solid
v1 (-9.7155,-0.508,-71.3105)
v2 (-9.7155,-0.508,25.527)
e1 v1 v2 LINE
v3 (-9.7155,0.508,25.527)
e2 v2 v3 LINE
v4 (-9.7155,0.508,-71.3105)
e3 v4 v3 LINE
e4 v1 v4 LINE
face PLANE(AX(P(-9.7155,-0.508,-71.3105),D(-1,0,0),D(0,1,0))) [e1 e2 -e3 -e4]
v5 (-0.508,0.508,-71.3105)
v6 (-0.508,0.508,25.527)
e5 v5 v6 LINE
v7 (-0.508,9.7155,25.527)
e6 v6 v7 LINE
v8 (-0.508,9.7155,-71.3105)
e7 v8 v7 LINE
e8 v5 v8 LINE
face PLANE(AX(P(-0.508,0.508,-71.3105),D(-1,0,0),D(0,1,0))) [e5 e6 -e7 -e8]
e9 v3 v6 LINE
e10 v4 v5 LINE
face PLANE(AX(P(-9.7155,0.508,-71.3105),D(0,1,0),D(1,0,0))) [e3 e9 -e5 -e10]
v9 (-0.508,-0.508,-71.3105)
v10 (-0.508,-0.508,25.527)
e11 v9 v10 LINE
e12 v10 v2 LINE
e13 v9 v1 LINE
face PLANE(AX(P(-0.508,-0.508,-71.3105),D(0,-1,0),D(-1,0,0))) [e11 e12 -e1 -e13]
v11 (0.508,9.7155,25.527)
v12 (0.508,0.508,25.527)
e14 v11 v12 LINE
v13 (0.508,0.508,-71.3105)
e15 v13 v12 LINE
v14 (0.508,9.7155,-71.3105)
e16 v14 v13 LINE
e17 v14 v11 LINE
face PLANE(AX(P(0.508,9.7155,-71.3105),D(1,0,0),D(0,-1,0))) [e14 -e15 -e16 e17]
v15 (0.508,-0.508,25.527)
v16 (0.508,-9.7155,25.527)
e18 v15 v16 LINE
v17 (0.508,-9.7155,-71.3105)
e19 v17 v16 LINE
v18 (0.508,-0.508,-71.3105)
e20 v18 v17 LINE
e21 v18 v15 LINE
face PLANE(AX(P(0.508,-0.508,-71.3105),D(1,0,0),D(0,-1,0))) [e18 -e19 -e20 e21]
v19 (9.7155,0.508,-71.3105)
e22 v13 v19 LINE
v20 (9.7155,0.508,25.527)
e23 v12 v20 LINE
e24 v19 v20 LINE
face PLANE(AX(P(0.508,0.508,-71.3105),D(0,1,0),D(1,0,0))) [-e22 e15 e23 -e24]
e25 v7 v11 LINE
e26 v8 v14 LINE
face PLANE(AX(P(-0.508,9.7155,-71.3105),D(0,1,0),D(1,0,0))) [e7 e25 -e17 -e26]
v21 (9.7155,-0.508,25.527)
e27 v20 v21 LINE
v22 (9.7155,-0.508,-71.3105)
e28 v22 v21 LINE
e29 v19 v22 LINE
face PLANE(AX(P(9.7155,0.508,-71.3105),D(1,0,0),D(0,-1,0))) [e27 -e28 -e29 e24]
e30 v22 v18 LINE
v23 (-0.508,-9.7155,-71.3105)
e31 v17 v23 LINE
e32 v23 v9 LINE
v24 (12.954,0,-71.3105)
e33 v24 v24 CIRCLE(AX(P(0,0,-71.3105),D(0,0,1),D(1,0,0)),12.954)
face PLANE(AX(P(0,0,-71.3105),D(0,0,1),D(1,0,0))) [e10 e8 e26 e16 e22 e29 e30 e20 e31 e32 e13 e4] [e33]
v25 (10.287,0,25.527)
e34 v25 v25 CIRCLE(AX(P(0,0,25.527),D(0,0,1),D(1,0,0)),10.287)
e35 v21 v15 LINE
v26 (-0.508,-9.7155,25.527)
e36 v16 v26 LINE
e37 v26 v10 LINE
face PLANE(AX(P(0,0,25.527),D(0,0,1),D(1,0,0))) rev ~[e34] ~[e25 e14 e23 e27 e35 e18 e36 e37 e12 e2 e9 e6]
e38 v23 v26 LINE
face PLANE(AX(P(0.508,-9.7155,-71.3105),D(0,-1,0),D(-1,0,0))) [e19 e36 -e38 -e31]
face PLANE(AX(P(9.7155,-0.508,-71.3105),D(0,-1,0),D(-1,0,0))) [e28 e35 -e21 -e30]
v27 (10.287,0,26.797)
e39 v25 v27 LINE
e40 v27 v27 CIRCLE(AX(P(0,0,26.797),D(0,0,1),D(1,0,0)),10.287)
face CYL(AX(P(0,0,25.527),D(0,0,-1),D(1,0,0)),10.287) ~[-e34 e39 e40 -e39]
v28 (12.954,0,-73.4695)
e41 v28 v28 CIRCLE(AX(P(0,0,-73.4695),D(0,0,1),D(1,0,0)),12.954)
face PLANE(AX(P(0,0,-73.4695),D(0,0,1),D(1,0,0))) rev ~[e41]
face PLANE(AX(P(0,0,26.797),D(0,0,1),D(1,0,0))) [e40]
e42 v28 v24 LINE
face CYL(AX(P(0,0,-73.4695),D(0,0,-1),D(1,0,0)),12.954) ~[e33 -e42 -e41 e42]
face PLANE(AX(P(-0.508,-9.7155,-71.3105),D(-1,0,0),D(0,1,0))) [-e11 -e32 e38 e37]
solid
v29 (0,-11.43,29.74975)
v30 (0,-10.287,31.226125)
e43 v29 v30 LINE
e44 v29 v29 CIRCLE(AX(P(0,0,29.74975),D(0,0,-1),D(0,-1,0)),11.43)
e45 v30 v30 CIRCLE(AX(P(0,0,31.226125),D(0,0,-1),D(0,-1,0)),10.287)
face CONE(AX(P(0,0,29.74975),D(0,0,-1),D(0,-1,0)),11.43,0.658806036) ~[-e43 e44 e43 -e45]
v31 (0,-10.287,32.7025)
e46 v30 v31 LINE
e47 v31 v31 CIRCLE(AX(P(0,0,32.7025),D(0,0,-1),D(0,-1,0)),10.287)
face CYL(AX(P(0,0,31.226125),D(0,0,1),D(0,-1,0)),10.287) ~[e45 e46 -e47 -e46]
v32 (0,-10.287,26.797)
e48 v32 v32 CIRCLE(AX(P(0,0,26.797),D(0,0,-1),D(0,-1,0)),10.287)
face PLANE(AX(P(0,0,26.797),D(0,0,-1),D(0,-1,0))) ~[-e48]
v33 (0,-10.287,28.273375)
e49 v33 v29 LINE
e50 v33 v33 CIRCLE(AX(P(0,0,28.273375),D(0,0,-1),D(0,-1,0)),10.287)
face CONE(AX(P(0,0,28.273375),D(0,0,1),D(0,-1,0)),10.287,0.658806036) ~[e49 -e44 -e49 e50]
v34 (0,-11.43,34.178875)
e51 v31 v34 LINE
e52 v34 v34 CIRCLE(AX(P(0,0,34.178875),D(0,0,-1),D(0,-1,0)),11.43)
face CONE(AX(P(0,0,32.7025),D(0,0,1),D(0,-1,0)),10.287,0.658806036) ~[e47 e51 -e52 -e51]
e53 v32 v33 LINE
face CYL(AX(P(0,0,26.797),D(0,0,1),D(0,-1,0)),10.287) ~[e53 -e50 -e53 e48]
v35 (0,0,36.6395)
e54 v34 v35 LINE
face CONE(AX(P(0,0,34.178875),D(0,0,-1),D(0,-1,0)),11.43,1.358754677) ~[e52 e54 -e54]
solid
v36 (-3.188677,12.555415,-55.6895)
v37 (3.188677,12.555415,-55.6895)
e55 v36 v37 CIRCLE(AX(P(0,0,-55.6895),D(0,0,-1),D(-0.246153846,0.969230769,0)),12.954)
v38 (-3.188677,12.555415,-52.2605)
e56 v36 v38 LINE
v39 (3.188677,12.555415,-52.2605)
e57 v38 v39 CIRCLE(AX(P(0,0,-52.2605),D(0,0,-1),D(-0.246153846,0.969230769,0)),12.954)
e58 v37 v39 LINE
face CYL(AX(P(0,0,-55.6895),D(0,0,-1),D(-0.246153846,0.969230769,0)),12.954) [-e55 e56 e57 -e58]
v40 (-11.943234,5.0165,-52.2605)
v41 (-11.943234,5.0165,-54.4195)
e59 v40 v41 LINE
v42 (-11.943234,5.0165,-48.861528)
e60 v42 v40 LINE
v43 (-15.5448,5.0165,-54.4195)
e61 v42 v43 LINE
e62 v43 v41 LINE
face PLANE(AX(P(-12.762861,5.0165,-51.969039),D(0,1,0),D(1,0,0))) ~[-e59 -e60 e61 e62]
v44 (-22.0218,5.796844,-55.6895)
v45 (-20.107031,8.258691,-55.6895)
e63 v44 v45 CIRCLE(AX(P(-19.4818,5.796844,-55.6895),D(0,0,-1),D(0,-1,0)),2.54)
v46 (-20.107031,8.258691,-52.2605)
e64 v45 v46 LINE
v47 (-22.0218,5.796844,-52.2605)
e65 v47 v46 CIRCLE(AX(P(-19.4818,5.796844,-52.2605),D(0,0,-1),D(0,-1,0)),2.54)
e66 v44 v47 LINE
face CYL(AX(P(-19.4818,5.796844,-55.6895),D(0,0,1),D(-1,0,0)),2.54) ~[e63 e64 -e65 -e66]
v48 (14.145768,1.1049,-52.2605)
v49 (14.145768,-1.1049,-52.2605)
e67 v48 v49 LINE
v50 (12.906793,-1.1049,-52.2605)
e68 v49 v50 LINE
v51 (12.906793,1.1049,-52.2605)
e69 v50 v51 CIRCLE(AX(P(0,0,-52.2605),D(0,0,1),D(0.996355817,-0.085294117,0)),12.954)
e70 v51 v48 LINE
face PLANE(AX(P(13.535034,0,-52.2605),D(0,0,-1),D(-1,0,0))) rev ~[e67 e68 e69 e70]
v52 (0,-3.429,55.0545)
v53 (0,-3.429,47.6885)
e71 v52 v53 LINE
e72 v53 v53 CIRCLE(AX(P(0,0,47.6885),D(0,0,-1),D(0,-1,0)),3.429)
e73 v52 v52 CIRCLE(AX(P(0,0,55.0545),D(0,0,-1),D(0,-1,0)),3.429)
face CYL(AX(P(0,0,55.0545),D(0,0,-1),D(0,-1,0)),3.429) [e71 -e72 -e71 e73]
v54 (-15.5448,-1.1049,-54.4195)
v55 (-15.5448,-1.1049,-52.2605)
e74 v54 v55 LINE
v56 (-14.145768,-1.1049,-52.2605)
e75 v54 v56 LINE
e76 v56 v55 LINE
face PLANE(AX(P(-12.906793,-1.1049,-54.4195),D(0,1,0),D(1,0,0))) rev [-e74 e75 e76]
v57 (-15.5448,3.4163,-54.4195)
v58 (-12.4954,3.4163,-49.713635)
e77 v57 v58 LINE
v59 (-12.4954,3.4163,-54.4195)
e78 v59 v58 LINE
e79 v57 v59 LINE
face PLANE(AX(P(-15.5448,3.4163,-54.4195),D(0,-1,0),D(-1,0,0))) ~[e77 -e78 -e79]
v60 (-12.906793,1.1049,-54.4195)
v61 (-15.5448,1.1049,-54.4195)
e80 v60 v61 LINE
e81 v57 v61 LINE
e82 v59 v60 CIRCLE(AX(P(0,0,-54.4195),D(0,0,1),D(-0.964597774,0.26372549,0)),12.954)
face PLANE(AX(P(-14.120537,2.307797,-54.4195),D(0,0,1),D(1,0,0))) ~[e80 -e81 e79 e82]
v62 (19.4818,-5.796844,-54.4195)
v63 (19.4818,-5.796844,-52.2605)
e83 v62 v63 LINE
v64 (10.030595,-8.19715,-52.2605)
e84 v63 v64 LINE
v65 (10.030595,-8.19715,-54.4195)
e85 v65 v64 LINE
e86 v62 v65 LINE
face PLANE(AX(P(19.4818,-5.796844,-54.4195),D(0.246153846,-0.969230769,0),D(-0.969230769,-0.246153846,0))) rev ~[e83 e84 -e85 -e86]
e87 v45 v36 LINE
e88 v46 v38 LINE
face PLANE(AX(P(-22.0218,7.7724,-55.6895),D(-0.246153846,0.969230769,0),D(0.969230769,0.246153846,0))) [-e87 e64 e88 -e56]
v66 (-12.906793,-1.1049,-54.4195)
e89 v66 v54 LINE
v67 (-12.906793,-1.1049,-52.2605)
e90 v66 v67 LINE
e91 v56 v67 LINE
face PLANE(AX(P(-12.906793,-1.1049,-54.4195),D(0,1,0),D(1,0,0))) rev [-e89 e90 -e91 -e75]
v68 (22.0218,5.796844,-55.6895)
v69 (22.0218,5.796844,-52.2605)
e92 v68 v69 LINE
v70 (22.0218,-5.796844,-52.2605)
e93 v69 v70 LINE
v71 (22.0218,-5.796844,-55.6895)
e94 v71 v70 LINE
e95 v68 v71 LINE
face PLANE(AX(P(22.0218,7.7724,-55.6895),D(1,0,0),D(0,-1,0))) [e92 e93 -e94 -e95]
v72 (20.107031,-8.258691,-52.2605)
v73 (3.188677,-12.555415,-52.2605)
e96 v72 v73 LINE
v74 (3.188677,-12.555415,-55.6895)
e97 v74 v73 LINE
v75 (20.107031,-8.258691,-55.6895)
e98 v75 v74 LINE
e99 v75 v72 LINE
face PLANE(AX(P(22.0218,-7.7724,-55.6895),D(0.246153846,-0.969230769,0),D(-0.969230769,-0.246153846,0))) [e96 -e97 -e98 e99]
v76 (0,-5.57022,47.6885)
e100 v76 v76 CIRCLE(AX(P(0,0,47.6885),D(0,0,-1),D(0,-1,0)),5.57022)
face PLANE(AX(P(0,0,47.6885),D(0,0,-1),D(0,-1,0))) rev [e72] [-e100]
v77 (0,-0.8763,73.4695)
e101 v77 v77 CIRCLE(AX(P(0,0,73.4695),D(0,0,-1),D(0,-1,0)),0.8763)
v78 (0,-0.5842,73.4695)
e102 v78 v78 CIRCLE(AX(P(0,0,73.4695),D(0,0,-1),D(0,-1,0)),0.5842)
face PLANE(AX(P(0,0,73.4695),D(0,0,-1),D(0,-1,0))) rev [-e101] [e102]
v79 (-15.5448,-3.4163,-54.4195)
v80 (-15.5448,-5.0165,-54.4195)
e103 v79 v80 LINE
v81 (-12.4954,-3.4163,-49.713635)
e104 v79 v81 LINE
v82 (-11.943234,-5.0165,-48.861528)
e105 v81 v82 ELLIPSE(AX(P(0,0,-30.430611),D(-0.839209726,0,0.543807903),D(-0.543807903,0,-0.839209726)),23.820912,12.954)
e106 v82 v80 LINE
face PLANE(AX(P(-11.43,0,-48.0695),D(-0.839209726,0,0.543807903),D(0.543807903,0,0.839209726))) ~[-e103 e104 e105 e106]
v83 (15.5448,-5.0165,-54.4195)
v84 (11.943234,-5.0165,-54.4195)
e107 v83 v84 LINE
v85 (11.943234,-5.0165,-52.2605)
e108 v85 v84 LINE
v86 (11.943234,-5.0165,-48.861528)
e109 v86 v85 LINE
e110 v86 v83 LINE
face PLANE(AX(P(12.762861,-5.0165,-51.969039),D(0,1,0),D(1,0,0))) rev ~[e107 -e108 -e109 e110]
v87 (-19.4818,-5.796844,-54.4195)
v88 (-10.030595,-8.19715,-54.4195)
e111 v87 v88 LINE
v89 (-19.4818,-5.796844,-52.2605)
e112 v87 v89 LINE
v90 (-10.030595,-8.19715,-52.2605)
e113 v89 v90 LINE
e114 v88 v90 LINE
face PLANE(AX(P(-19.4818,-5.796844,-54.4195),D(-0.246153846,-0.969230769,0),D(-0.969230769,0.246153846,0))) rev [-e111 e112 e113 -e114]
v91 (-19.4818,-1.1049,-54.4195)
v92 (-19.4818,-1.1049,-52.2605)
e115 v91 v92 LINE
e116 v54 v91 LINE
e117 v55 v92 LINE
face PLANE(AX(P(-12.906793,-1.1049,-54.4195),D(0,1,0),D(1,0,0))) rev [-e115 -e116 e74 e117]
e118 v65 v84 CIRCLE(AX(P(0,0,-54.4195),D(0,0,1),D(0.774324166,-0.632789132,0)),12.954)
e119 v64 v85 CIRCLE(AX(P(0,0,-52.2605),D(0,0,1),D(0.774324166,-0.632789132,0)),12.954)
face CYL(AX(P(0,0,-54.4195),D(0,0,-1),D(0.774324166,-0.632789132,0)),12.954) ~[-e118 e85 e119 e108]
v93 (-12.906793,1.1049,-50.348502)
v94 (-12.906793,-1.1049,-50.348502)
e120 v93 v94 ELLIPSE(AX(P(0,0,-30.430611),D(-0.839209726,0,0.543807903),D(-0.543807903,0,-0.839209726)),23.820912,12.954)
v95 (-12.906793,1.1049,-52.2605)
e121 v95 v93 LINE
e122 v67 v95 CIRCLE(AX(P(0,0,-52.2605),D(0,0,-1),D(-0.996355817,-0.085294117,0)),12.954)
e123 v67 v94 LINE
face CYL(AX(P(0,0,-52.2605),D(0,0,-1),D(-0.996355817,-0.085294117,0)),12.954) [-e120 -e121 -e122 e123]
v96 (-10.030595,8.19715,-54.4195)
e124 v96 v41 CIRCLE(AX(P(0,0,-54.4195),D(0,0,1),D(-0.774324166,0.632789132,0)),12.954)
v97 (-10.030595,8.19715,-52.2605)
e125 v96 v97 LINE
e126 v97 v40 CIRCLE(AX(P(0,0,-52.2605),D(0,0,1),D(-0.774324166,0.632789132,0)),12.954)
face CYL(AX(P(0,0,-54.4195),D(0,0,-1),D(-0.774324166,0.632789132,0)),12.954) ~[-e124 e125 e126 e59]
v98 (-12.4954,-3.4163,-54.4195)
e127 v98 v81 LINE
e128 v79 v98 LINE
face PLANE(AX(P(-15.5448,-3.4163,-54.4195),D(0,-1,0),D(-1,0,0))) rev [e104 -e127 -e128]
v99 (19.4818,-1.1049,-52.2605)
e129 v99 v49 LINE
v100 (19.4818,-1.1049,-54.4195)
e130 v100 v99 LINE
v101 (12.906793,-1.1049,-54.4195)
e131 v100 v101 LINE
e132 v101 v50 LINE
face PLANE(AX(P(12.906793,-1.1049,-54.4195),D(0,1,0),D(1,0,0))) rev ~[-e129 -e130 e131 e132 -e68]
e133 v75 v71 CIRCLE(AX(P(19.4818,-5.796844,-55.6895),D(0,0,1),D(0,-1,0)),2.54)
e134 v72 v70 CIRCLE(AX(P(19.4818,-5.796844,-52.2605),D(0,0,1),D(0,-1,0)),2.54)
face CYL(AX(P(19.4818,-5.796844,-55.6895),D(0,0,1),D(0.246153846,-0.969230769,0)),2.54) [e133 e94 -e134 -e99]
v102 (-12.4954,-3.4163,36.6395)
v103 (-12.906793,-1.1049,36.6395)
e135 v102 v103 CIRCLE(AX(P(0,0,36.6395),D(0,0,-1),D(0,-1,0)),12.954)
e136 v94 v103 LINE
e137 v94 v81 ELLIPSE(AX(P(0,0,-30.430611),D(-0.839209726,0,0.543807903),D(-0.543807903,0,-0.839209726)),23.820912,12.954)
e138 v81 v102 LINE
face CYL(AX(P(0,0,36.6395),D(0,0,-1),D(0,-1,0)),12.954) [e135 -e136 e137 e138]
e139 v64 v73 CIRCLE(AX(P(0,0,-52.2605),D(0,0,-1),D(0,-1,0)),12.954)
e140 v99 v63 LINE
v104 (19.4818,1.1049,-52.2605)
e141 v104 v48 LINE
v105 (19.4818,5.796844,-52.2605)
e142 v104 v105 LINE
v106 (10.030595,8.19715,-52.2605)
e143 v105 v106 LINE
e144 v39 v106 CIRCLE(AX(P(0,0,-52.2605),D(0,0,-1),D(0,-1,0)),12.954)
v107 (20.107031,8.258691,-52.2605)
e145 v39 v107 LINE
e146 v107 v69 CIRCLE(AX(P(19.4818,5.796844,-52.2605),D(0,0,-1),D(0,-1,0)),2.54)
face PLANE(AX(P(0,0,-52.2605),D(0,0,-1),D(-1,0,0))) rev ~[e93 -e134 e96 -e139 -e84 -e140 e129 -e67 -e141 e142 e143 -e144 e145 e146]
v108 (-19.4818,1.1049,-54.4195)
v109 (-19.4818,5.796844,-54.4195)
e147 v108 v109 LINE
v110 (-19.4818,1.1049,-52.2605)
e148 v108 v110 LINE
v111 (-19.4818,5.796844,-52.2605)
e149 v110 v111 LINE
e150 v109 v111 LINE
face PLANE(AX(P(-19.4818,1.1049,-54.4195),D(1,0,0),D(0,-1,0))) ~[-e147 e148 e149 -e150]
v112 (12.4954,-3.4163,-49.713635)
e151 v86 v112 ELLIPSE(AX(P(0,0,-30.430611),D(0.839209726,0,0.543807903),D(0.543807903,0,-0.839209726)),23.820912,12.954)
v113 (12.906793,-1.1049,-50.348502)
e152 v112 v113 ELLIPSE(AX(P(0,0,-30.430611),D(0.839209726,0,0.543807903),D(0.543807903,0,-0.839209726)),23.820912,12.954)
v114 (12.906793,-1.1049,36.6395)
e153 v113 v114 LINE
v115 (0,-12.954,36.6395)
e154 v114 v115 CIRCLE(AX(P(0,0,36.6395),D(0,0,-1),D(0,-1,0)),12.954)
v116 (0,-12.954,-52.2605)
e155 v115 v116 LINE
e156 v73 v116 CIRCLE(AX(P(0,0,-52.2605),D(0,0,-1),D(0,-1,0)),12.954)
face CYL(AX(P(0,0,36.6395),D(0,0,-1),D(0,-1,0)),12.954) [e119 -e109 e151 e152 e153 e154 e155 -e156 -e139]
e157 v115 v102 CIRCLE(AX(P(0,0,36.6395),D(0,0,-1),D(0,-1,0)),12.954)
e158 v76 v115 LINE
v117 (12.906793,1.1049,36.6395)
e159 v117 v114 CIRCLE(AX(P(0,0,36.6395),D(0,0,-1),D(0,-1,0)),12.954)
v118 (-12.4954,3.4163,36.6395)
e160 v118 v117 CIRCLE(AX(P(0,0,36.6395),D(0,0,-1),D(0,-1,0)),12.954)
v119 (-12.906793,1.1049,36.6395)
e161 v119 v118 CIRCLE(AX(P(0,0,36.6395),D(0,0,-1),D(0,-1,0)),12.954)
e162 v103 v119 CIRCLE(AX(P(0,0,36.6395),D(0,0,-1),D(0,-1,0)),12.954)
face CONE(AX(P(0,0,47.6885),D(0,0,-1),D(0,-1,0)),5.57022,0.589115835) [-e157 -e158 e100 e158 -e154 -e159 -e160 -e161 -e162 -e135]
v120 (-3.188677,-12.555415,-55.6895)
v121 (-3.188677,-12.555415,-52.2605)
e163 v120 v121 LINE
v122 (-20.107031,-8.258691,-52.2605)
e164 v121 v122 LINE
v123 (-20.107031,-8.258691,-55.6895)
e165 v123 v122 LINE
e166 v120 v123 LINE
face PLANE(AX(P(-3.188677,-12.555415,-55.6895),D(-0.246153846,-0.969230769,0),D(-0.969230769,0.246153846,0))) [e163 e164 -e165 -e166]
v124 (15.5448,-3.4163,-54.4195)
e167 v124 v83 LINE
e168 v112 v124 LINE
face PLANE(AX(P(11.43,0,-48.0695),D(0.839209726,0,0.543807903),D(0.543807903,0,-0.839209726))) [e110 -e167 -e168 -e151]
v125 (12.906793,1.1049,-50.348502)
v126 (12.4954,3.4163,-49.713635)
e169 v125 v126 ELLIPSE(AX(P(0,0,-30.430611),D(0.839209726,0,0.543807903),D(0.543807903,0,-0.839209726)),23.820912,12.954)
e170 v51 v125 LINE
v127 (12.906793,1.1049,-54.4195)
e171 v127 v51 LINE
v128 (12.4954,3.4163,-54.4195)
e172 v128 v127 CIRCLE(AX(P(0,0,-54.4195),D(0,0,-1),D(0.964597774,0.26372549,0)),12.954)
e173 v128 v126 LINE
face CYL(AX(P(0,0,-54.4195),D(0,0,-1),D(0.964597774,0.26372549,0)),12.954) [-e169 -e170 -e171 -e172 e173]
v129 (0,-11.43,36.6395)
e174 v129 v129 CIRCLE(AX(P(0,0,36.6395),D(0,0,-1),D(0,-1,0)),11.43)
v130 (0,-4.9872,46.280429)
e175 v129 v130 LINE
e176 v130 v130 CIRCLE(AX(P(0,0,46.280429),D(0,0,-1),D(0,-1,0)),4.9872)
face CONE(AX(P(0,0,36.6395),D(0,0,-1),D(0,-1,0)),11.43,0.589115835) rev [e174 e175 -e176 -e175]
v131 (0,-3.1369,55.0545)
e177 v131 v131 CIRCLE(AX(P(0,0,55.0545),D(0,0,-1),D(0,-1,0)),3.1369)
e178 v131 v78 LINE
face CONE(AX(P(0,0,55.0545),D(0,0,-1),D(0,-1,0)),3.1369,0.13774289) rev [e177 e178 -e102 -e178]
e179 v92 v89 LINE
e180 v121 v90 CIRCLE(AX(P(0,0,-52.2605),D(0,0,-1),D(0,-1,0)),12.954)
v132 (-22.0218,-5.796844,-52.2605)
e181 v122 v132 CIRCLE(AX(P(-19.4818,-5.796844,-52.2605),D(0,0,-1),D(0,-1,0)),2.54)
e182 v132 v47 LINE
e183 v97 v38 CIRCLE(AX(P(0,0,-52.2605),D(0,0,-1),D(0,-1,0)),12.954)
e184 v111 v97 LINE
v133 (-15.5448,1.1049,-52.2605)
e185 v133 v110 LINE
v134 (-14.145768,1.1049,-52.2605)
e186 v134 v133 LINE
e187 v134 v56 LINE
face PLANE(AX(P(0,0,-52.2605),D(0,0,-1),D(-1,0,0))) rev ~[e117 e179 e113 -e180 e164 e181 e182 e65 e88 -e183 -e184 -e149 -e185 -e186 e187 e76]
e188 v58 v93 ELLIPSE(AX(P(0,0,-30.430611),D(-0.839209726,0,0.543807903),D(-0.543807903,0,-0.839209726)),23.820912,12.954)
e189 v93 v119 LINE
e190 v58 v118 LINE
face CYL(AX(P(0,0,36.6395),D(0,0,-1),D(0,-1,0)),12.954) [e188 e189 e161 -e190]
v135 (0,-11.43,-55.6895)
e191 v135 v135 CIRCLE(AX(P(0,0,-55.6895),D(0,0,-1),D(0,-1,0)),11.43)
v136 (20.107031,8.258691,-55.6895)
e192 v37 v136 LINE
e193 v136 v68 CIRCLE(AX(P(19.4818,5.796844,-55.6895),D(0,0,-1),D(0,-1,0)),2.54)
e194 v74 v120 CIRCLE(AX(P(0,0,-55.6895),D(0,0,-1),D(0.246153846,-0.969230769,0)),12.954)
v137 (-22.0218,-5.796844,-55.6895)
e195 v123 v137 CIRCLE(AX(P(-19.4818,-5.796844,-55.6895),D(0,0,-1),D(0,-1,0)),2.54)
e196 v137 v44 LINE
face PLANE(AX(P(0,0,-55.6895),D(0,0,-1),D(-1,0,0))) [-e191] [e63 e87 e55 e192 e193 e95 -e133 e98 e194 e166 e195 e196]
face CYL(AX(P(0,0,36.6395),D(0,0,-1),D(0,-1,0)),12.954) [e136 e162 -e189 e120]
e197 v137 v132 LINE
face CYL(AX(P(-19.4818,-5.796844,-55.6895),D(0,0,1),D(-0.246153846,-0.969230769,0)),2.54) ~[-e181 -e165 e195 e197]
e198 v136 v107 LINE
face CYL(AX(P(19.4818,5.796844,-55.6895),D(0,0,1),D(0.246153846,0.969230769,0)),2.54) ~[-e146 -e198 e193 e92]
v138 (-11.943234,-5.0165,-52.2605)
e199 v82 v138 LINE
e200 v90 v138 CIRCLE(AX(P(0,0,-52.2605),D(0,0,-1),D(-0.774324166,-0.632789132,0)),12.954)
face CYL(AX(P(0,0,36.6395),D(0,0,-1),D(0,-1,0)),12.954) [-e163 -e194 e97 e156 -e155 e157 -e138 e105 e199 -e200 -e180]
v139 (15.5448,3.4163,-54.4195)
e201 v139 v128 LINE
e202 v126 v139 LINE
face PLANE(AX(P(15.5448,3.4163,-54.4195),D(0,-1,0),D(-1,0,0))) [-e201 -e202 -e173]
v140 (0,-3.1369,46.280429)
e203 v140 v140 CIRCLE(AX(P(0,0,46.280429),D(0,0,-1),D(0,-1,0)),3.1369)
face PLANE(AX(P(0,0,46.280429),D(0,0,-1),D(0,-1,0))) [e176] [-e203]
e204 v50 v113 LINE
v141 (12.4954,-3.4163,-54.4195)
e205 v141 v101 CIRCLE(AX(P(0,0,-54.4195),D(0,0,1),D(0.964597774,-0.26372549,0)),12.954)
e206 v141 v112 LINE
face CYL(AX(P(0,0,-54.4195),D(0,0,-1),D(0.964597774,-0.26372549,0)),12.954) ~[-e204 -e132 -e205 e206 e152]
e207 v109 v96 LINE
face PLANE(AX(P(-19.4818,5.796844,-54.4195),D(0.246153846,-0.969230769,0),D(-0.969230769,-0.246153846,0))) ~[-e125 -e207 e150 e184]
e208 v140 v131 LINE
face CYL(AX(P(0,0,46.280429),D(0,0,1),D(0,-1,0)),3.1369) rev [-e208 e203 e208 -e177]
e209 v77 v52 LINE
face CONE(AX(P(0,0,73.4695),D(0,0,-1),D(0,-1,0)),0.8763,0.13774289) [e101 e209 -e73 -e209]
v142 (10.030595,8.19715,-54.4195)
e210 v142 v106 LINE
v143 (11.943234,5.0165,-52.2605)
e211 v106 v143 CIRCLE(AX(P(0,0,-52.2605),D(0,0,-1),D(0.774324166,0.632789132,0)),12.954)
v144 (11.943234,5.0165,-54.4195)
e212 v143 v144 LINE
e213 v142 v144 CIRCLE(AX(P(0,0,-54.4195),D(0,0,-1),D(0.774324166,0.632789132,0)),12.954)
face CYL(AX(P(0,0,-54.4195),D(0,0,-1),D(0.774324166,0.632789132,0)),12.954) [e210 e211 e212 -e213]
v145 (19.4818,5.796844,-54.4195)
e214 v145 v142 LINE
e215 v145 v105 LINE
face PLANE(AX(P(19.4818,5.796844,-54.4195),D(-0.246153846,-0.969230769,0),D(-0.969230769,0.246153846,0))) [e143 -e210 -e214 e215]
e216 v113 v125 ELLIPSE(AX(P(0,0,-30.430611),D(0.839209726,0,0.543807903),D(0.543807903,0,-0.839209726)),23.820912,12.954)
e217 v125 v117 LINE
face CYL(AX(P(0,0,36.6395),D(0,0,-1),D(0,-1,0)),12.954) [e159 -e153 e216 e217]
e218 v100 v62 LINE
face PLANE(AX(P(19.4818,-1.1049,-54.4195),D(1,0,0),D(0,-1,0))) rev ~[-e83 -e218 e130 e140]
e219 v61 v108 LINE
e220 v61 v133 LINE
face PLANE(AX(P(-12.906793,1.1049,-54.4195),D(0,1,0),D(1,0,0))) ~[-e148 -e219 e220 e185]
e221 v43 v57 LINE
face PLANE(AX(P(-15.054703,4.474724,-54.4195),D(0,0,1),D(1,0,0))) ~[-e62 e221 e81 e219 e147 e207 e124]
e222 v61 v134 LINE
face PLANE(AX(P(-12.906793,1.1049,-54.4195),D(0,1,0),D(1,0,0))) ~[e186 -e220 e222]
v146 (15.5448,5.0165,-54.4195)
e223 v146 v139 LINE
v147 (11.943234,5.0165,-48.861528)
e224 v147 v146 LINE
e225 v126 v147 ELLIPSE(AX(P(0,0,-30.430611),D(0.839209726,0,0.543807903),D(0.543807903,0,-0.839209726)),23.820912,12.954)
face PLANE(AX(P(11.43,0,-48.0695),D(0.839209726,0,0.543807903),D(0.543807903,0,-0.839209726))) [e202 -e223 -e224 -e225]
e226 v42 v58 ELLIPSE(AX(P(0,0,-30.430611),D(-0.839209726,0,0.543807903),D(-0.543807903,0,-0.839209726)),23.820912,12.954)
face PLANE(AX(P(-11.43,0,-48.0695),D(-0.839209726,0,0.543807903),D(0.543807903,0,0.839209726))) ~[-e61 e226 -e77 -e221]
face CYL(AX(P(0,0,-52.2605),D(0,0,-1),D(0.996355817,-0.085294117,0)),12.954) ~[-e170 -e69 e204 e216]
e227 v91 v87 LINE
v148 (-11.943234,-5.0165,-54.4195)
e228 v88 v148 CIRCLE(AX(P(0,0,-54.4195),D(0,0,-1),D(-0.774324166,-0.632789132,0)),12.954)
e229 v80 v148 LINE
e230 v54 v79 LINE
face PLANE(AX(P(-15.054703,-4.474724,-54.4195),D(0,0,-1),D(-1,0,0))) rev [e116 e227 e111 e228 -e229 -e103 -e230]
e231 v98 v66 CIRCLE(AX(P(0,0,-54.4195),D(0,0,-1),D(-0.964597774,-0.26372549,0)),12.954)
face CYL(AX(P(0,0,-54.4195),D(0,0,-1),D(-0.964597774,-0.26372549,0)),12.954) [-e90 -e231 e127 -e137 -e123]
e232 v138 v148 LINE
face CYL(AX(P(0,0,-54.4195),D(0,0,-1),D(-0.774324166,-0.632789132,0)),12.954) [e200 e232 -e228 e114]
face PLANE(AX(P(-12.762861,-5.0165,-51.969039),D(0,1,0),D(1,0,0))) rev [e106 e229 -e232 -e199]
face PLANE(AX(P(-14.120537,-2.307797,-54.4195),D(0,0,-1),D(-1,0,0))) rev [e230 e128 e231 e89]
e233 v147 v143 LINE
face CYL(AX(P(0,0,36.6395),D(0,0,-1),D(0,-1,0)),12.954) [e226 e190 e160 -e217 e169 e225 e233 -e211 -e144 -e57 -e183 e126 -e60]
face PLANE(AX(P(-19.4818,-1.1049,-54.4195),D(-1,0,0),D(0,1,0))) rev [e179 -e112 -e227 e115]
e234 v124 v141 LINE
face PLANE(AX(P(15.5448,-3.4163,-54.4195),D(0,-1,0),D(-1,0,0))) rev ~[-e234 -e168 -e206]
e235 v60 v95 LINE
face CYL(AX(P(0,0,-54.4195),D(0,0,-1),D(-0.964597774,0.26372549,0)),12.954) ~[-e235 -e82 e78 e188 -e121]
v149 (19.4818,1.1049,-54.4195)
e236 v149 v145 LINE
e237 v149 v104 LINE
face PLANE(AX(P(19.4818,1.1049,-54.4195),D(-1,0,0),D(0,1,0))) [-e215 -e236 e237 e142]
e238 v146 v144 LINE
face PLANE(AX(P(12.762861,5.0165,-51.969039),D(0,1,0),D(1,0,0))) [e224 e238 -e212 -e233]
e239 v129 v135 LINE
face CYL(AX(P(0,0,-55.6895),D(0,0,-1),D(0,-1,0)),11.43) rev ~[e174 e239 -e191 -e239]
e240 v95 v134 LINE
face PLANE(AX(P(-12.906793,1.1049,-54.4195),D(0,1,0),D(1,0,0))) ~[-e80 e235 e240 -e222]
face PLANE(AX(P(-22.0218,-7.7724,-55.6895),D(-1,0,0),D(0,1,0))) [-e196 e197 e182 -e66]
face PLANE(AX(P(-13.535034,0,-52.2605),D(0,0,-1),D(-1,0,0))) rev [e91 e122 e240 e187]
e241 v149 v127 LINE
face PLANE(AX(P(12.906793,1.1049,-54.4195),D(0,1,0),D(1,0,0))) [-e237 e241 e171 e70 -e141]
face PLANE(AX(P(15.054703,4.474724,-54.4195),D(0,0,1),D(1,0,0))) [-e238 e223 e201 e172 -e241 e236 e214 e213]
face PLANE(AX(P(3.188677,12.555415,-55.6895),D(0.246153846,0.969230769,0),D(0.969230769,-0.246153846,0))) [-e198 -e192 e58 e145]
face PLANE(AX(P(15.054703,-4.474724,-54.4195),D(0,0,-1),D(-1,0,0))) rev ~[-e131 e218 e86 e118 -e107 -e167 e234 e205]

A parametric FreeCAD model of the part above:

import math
import FreeCAD as App
import Part
import Sketcher
from FreeCAD import Vector
Q = App.Units.Quantity


def edges_at(feature, points):
    """Names of the edges that pass closest to the given points."""
    edges = feature.Shape.Edges
    near = lambda p: min(range(len(edges)), key=lambda i: edges[i].distToShape(Part.Vertex(*p))[0])
    return sorted({f"Edge{near(p) + 1}" for p in points})

doc = App.newDocument("Part")
params = doc.addObject("Spreadsheet::Sheet", "Params")
for row, (alias, value) in enumerate([
    ("sketch1_height", "3.5 in"),
    ("sketch1_width", "0.06 in"),
    ("sketch1_height2", "0.29 in"),
    ("revolution_angle", "360 deg"),
    ("sketch2_diameter", "0.9 in"),
    ("sketch2_radius", "0.51 in"),
    ("sketch2_height", "0.612 in"),
    ("sketch2_length", "0.765 in"),
    ("pad1_length", "0.135 in"),
    ("fillet_radius", "0.1 in"),
    ("sketch3_radius", "0.51 in"),
    ("pocket1_length", "0.085 in"),
    ("sketch4_height", "0.25 in"),
    ("sketch4_width", "0.162 in"),
    ("pad2_length", "0.395 in"),
    ("sketch5_radius", "0.51 in"),
    ("sketch5_height", "0.091 in"),
    ("sketch6_radius", "0.51 in"),
    ("sketch6_height", "0.087 in"),
    ("sketch7_diameter", "1.02 in"),
    ("pad3_length", "0.085 in"),
    ("sketch8_width", "0.04 in"),
    ("pad4_length", "3.8125 in"),
    ("sketch9_diameter", "0.81 in"),
    ("pad5_length", "0.05 in"),
    ("sketch10_width", "0.405 in"),
    ("revolution2_angle", "360 deg"),
], start=1):
    params.set(f"A{row}", alias)
    params.set(f"B{row}", "=" + value)
    params.setAlias(f"B{row}", alias)

body = doc.addObject("PartDesign::Body", "Body")

sketch1 = body.newObject("Sketcher::SketchObject", "Sketch")
sketch1.AttachmentSupport = (doc.getObject("YZ_Plane"), [""])
sketch1.MapMode = "FlatFace"
sketch1.addGeometry(Part.LineSegment(Vector(11.43, 36.6395, 0), Vector(11.43, -52.2605, 0)), False)
sketch1.addGeometry(Part.LineSegment(Vector(11.43, -52.2605, 0), Vector(12.954, -52.2605, 0)), False)
sketch1.addGeometry(Part.LineSegment(Vector(12.954, -52.2605, 0), Vector(12.954, 36.6395, 0)), False)
sketch1.addGeometry(Part.LineSegment(Vector(12.954, 36.6395, 0), Vector(5.57022, 47.6885, 0)), False)
sketch1.addGeometry(Part.LineSegment(Vector(5.57022, 47.6885, 0), Vector(3.429, 47.6885, 0)), False)
sketch1.addGeometry(Part.LineSegment(Vector(3.429, 47.6885, 0), Vector(3.429, 55.0545, 0)), False)
sketch1.addGeometry(Part.LineSegment(Vector(3.429, 55.0545, 0), Vector(0.8763, 73.4695, 0)), False)
sketch1.addGeometry(Part.LineSegment(Vector(0.8763, 73.4695, 0), Vector(0.5842, 73.4695, 0)), False)
sketch1.addGeometry(Part.LineSegment(Vector(0.5842, 73.4695, 0), Vector(3.1369, 55.0545, 0)), False)
sketch1.addGeometry(Part.LineSegment(Vector(3.1369, 55.0545, 0), Vector(3.1369, 46.280429, 0)), False)
sketch1.addGeometry(Part.LineSegment(Vector(3.1369, 46.280429, 0), Vector(4.9872, 46.280429, 0)), False)
sketch1.addGeometry(Part.LineSegment(Vector(4.9872, 46.280429, 0), Vector(11.43, 36.6395, 0)), False)
sketch1.addConstraint(Sketcher.Constraint("Coincident", 0, 2, 1, 1))
sketch1.addConstraint(Sketcher.Constraint("Coincident", 1, 2, 2, 1))
sketch1.addConstraint(Sketcher.Constraint("Coincident", 2, 2, 3, 1))
sketch1.addConstraint(Sketcher.Constraint("Coincident", 3, 2, 4, 1))
sketch1.addConstraint(Sketcher.Constraint("Coincident", 4, 2, 5, 1))
sketch1.addConstraint(Sketcher.Constraint("Coincident", 5, 2, 6, 1))
sketch1.addConstraint(Sketcher.Constraint("Coincident", 6, 2, 7, 1))
sketch1.addConstraint(Sketcher.Constraint("Coincident", 7, 2, 8, 1))
sketch1.addConstraint(Sketcher.Constraint("Coincident", 8, 2, 9, 1))
sketch1.addConstraint(Sketcher.Constraint("Coincident", 9, 2, 10, 1))
sketch1.addConstraint(Sketcher.Constraint("Coincident", 10, 2, 11, 1))
sketch1.addConstraint(Sketcher.Constraint("Coincident", 11, 2, 0, 1))
sketch1.addConstraint(Sketcher.Constraint("Vertical", 0))
sketch1.addConstraint(Sketcher.Constraint("Horizontal", 1))
sketch1.addConstraint(Sketcher.Constraint("Vertical", 2))
sketch1.addConstraint(Sketcher.Constraint("Horizontal", 4))
sketch1.addConstraint(Sketcher.Constraint("Vertical", 5))
sketch1.addConstraint(Sketcher.Constraint("Horizontal", 7))
sketch1.addConstraint(Sketcher.Constraint("Vertical", 9))
sketch1.addConstraint(Sketcher.Constraint("Horizontal", 10))
sketch1.addConstraint(Sketcher.Constraint("Parallel", 6, 8))
sketch1.addConstraint(Sketcher.Constraint("Parallel", 3, 11))
sketch1.addConstraint(Sketcher.Constraint("Horizontal", 5, 2, 8, 2))
sketch1.addConstraint(Sketcher.Constraint("Horizontal", 2, 2, 11, 2))
sketch1.addConstraint(Sketcher.Constraint("DistanceY", 0, 2, 0, 1, Q("3.5 in")))
sketch1.addConstraint(Sketcher.Constraint("DistanceX", 1, 1, 1, 2, Q("0.06 in")))
sketch1.addConstraint(Sketcher.Constraint("DistanceY", 5, 1, 5, 2, Q("0.29 in")))
sketch1.addConstraint(Sketcher.Constraint("DistanceX", -1, 1, 0, 2, Q("0.45 in")))
sketch1.addConstraint(Sketcher.Constraint("DistanceY", 2, 2, 6, 2, Q("1.45 in")))
sketch1.addConstraint(Sketcher.Constraint("DistanceX", 4, 2, 4, 1, Q("0.0843 in")))
sketch1.addConstraint(Sketcher.Constraint("DistanceX", 7, 2, 7, 1, Q("0.0115 in")))
sketch1.addConstraint(Sketcher.Constraint("DistanceX", -1, 1, 4, 2, Q("0.135 in")))
sketch1.addConstraint(Sketcher.Constraint("DistanceX", -1, 1, 7, 2, Q("0.023 in")))
sketch1.addConstraint(Sketcher.Constraint("DistanceY", 2, 2, 3, 2, Q("0.435 in")))
sketch1.addConstraint(Sketcher.Constraint("DistanceX", 10, 1, 10, 2, 1.8503))
sketch1.addConstraint(Sketcher.Constraint("DistanceY", 0, 2, -1, 1, Q("2.0575 in")))
sketch1.setExpression("Constraints[24]", "Params.sketch1_height")
sketch1.setExpression("Constraints[25]", "Params.sketch1_width")
sketch1.setExpression("Constraints[26]", "Params.sketch1_height2")
revolution = body.newObject("PartDesign::Revolution", "Revolution")
revolution.Profile = sketch1
revolution.ReferenceAxis = (sketch1, ["V_Axis"])
revolution.setExpression("Angle", "Params.revolution_angle")

sketch2 = body.newObject("Sketcher::SketchObject", "Sketch001")
sketch2.AttachmentSupport = (doc.getObject("XY_Plane"), [""])
sketch2.MapMode = "FlatFace"
sketch2.AttachmentOffset = App.Placement(Vector(0, 0, -2.1925 * 25.4), App.Rotation())
sketch2.addGeometry(Part.LineSegment(Vector(3.188677, 12.555415, 0), Vector(22.0218, 7.7724, 0)), False)
sketch2.addGeometry(Part.LineSegment(Vector(22.0218, 7.7724, 0), Vector(22.0218, -7.7724, 0)), False)
sketch2.addGeometry(Part.LineSegment(Vector(22.0218, -7.7724, 0), Vector(3.188677, -12.555415, 0)), False)
sketch2.addGeometry(Part.ArcOfCircle(Part.Circle(Vector(0, 0, 0), Vector(0, 0, 1), 12.954), math.radians(-104.250033), math.radians(-75.749967)), False)
sketch2.addGeometry(Part.LineSegment(Vector(-3.188677, -12.555415, 0), Vector(-22.0218, -7.7724, 0)), False)
sketch2.addGeometry(Part.LineSegment(Vector(-22.0218, -7.7724, 0), Vector(-22.0218, 7.7724, 0)), False)
sketch2.addGeometry(Part.LineSegment(Vector(-22.0218, 7.7724, 0), Vector(-3.188677, 12.555415, 0)), False)
sketch2.addGeometry(Part.ArcOfCircle(Part.Circle(Vector(0, 0, 0), Vector(0, 0, 1), 12.954), math.radians(75.749967), math.radians(104.250033)), False)
sketch2.addGeometry(Part.Circle(Vector(0, 0, 0), Vector(0, 0, 1), 11.43), False)
sketch2.addConstraint(Sketcher.Constraint("Coincident", 0, 2, 1, 1))
sketch2.addConstraint(Sketcher.Constraint("Coincident", 1, 2, 2, 1))
sketch2.addConstraint(Sketcher.Constraint("Tangent", 2, 2, 3, 2))
sketch2.addConstraint(Sketcher.Constraint("Tangent", 3, 1, 4, 1))
sketch2.addConstraint(Sketcher.Constraint("Coincident", 4, 2, 5, 1))
sketch2.addConstraint(Sketcher.Constraint("Coincident", 5, 2, 6, 1))
sketch2.addConstraint(Sketcher.Constraint("Tangent", 6, 2, 7, 2))
sketch2.addConstraint(Sketcher.Constraint("Tangent", 7, 1, 0, 1))
sketch2.addConstraint(Sketcher.Constraint("Vertical", 1))
sketch2.addConstraint(Sketcher.Constraint("Vertical", 5))
sketch2.addConstraint(Sketcher.Constraint("Coincident", 3, 3, -1, 1))
sketch2.addConstraint(Sketcher.Constraint("Coincident", 7, 3, -1, 1))
sketch2.addConstraint(Sketcher.Constraint("Coincident", 8, 3, -1, 1))
sketch2.addConstraint(Sketcher.Constraint("Equal", 3, 7))
sketch2.addConstraint(Sketcher.Constraint("Symmetric", 0, 2, 4, 2, -1, 1))
sketch2.addConstraint(Sketcher.Constraint("Parallel", 2, 6))
sketch2.addConstraint(Sketcher.Constraint("Horizontal", 2, 2, 3, 1))
sketch2.addConstraint(Sketcher.Constraint("Diameter", 8, Q("0.9 in")))
sketch2.addConstraint(Sketcher.Constraint("Radius", 3, Q("0.51 in")))
sketch2.addConstraint(Sketcher.Constraint("DistanceY", 1, 2, 1, 1, Q("0.612 in")))
sketch2.addConstraint(Sketcher.Constraint("Distance", 0, Q("0.765 in")))
sketch2.setExpression("Constraints[17]", "Params.sketch2_diameter")
sketch2.setExpression("Constraints[18]", "Params.sketch2_radius")
sketch2.setExpression("Constraints[19]", "Params.sketch2_height")
sketch2.setExpression("Constraints[20]", "Params.sketch2_length")
pad1 = body.newObject("PartDesign::Pad", "Pad")
pad1.Profile = sketch2
pad1.setExpression("Length", "Params.pad1_length")
doc.recompute()

fillet = body.newObject("PartDesign::Fillet", "Fillet")
fillet.Base = (pad1, edges_at(pad1, [
    (22.022, 7.772, -53.975),
    (22.022, -7.772, -53.975),
    (-22.022, -7.772, -53.975),
    (-22.022, 7.772, -53.975),
]))
fillet.setExpression("Radius", "Params.fillet_radius")

sketch3 = body.newObject("Sketcher::SketchObject", "Sketch002")
sketch3.AttachmentSupport = (doc.getObject("XY_Plane"), [""])
sketch3.MapMode = "FlatFace"
sketch3.AttachmentOffset = App.Placement(Vector(0, 0, -2.1425 * 25.4), App.Rotation())
sketch3.addGeometry(Part.LineSegment(Vector(19.4818, 5.796844, 0), Vector(10.030595, 8.19715, 0)), False)
sketch3.addGeometry(Part.ArcOfCircle(Part.Circle(Vector(0, 0, 0), Vector(0, 0, 1), 12.954), math.radians(4.892938), math.radians(39.256201)), False)
sketch3.addGeometry(Part.LineSegment(Vector(12.906793, 1.1049, 0), Vector(19.4818, 1.1049, 0)), False)
sketch3.addGeometry(Part.LineSegment(Vector(19.4818, 1.1049, 0), Vector(19.4818, 5.796844, 0)), False)
sketch3.addGeometry(Part.LineSegment(Vector(10.030595, -8.19715, 0), Vector(19.4818, -5.796844, 0)), False)
sketch3.addGeometry(Part.LineSegment(Vector(19.4818, -5.796844, 0), Vector(19.4818, -1.1049, 0)), False)
sketch3.addGeometry(Part.LineSegment(Vector(19.4818, -1.1049, 0), Vector(12.906793, -1.1049, 0)), False)
sketch3.addGeometry(Part.ArcOfCircle(Part.Circle(Vector(0, 0, 0), Vector(0, 0, 1), 12.954), math.radians(-39.256201), math.radians(-4.892938)), False)
sketch3.addConstraint(Sketcher.Constraint("Coincident", 0, 2, 1, 2))
sketch3.addConstraint(Sketcher.Constraint("Coincident", 1, 1, 2, 1))
sketch3.addConstraint(Sketcher.Constraint("Coincident", 2, 2, 3, 1))
sketch3.addConstraint(Sketcher.Constraint("Coincident", 3, 2, 0, 1))
sketch3.addConstraint(Sketcher.Constraint("Coincident", 4, 2, 5, 1))
sketch3.addConstraint(Sketcher.Constraint("Coincident", 5, 2, 6, 1))
sketch3.addConstraint(Sketcher.Constraint("Coincident", 6, 2, 7, 2))
sketch3.addConstraint(Sketcher.Constraint("Coincident", 7, 1, 4, 1))
sketch3.addConstraint(Sketcher.Constraint("Horizontal", 2))
sketch3.addConstraint(Sketcher.Constraint("Vertical", 3))
sketch3.addConstraint(Sketcher.Constraint("Vertical", 5))
sketch3.addConstraint(Sketcher.Constraint("Horizontal", 6))
sketch3.addConstraint(Sketcher.Constraint("Coincident", 1, 3, -1, 1))
sketch3.addConstraint(Sketcher.Constraint("Coincident", 7, 3, -1, 1))
sketch3.addConstraint(Sketcher.Constraint("Equal", 1, 7))
sketch3.addConstraint(Sketcher.Constraint("Symmetric", 3, 2, 4, 2, -1))
sketch3.addConstraint(Sketcher.Constraint("Vertical", 1, 1, 6, 2))
sketch3.addConstraint(Sketcher.Constraint("Vertical", 0, 2, 7, 1))
sketch3.addConstraint(Sketcher.Constraint("Radius", 1, Q("0.51 in")))
sketch3.addConstraint(Sketcher.Constraint("DistanceX", -1, 1, 2, 2, Q("0.767 in")))
sketch3.addConstraint(Sketcher.Constraint("DistanceY", 5, 2, 2, 2, Q("0.087 in")))
sketch3.addConstraint(Sketcher.Constraint("DistanceY", 3, 1, 3, 2, 4.691944))
sketch3.addConstraint(Sketcher.Constraint("DistanceY", -1, 1, 0, 2, 8.19715))
sketch3.setExpression("Constraints[18]", "Params.sketch3_radius")
pocket1 = body.newObject("PartDesign::Pocket", "Pocket")
pocket1.Profile = sketch3
pocket1.setExpression("Length", "Params.pocket1_length")
pocket1.Reversed = True

sketch4 = body.newObject("Sketcher::SketchObject", "Sketch003")
sketch4.AttachmentSupport = (doc.getObject("XZ_Plane"), [""])
sketch4.MapMode = "FlatFace"
sketch4.addGeometry(Part.LineSegment(Vector(11.43, -54.4195, 0), Vector(11.43, -48.0695, 0)), False)
sketch4.addGeometry(Part.LineSegment(Vector(11.43, -48.0695, 0), Vector(15.5448, -54.4195, 0)), False)
sketch4.addGeometry(Part.LineSegment(Vector(15.5448, -54.4195, 0), Vector(11.43, -54.4195, 0)), False)
sketch4.addConstraint(Sketcher.Constraint("Coincident", 0, 2, 1, 1))
sketch4.addConstraint(Sketcher.Constraint("Coincident", 1, 2, 2, 1))
sketch4.addConstraint(Sketcher.Constraint("Coincident", 2, 2, 0, 1))
sketch4.addConstraint(Sketcher.Constraint("Vertical", 0))
sketch4.addConstraint(Sketcher.Constraint("Horizontal", 2))
sketch4.addConstraint(Sketcher.Constraint("DistanceY", 0, 1, 0, 2, Q("0.25 in")))
sketch4.addConstraint(Sketcher.Constraint("DistanceX", 2, 2, 2, 1, Q("0.162 in")))
sketch4.addConstraint(Sketcher.Constraint("DistanceX", -1, 1, 0, 2, Q("0.45 in")))
sketch4.addConstraint(Sketcher.Constraint("DistanceY", 0, 2, -1, 1, Q("1.8925 in")))
sketch4.setExpression("Constraints[5]", "Params.sketch4_height")
sketch4.setExpression("Constraints[6]", "Params.sketch4_width")
pad2 = body.newObject("PartDesign::Pad", "Pad001")
pad2.Profile = sketch4
pad2.setExpression("Length", "Params.pad2_length")
pad2.Midplane = True

sketch5 = body.newObject("Sketcher::SketchObject", "Sketch004")
sketch5.AttachmentSupport = (doc.getObject("XY_Plane"), [""])
sketch5.MapMode = "FlatFace"
sketch5.AttachmentOffset = App.Placement(Vector(0, 0, -2.1425 * 25.4), App.Rotation())
sketch5.addGeometry(Part.LineSegment(Vector(15.5448, 3.4163, 0), Vector(12.4954, 3.4163, 0)), False)
sketch5.addGeometry(Part.ArcOfCircle(Part.Circle(Vector(0, 0, 0), Vector(0, 0, 1), 12.954), math.radians(4.892938), math.radians(15.291235)), False)
sketch5.addGeometry(Part.LineSegment(Vector(12.906793, 1.1049, 0), Vector(15.5448, 1.1049, 0)), False)
sketch5.addGeometry(Part.LineSegment(Vector(15.5448, 1.1049, 0), Vector(15.5448, 3.4163, 0)), False)
sketch5.addGeometry(Part.LineSegment(Vector(12.4954, -3.4163, 0), Vector(15.5448, -3.4163, 0)), False)
sketch5.addGeometry(Part.LineSegment(Vector(15.5448, -3.4163, 0), Vector(15.5448, -1.1049, 0)), False)
sketch5.addGeometry(Part.LineSegment(Vector(15.5448, -1.1049, 0), Vector(12.906793, -1.1049, 0)), False)
sketch5.addGeometry(Part.ArcOfCircle(Part.Circle(Vector(0, 0, 0), Vector(0, 0, 1), 12.954), math.radians(-15.291235), math.radians(-4.892938)), False)
sketch5.addConstraint(Sketcher.Constraint("Coincident", 0, 2, 1, 2))
sketch5.addConstraint(Sketcher.Constraint("Coincident", 1, 1, 2, 1))
sketch5.addConstraint(Sketcher.Constraint("Coincident", 2, 2, 3, 1))
sketch5.addConstraint(Sketcher.Constraint("Coincident", 3, 2, 0, 1))
sketch5.addConstraint(Sketcher.Constraint("Coincident", 4, 2, 5, 1))
sketch5.addConstraint(Sketcher.Constraint("Coincident", 5, 2, 6, 1))
sketch5.addConstraint(Sketcher.Constraint("Coincident", 6, 2, 7, 2))
sketch5.addConstraint(Sketcher.Constraint("Coincident", 7, 1, 4, 1))
sketch5.addConstraint(Sketcher.Constraint("Horizontal", 0))
sketch5.addConstraint(Sketcher.Constraint("Horizontal", 2))
sketch5.addConstraint(Sketcher.Constraint("Vertical", 3))
sketch5.addConstraint(Sketcher.Constraint("Horizontal", 4))
sketch5.addConstraint(Sketcher.Constraint("Vertical", 5))
sketch5.addConstraint(Sketcher.Constraint("Horizontal", 6))
sketch5.addConstraint(Sketcher.Constraint("Coincident", 1, 3, -1, 1))
sketch5.addConstraint(Sketcher.Constraint("Coincident", 7, 3, -1, 1))
sketch5.addConstraint(Sketcher.Constraint("Equal", 1, 7))
sketch5.addConstraint(Sketcher.Constraint("Symmetric", 3, 2, 4, 2, -1))
sketch5.addConstraint(Sketcher.Constraint("Vertical", 1, 1, 6, 2))
sketch5.addConstraint(Sketcher.Constraint("Radius", 1, Q("0.51 in")))
sketch5.addConstraint(Sketcher.Constraint("DistanceY", 3, 1, 3, 2, Q("0.091 in")))
sketch5.addConstraint(Sketcher.Constraint("DistanceX", -1, 1, 2, 2, Q("0.612 in")))
sketch5.addConstraint(Sketcher.Constraint("DistanceY", 4, 2, 2, 2, Q("0.178 in")))
sketch5.setExpression("Constraints[19]", "Params.sketch5_radius")
sketch5.setExpression("Constraints[20]", "Params.sketch5_height")
pocket2 = body.newObject("PartDesign::Pocket", "Pocket001")
pocket2.Profile = sketch5
pocket2.Type = "ThroughAll"
pocket2.Reversed = True

sketch6 = body.newObject("Sketcher::SketchObject", "Sketch005")
sketch6.AttachmentSupport = (doc.getObject("XY_Plane"), [""])
sketch6.MapMode = "FlatFace"
sketch6.AttachmentOffset = App.Placement(Vector(0, 0, -2.0575 * 25.4), App.Rotation())
sketch6.addGeometry(Part.LineSegment(Vector(12.906793, -1.1049, 0), Vector(14.145768, -1.1049, 0)), False)
sketch6.addGeometry(Part.LineSegment(Vector(14.145768, -1.1049, 0), Vector(14.145768, 1.1049, 0)), False)
sketch6.addGeometry(Part.LineSegment(Vector(14.145768, 1.1049, 0), Vector(12.906793, 1.1049, 0)), False)
sketch6.addGeometry(Part.ArcOfCircle(Part.Circle(Vector(0, 0, 0), Vector(0, 0, 1), 12.954), math.radians(-4.892938), math.radians(4.892938)), False)
sketch6.addConstraint(Sketcher.Constraint("Coincident", 0, 2, 1, 1))
sketch6.addConstraint(Sketcher.Constraint("Coincident", 1, 2, 2, 1))
sketch6.addConstraint(Sketcher.Constraint("Coincident", 2, 2, 3, 2))
sketch6.addConstraint(Sketcher.Constraint("Coincident", 3, 1, 0, 1))
sketch6.addConstraint(Sketcher.Constraint("Horizontal", 0))
sketch6.addConstraint(Sketcher.Constraint("Vertical", 1))
sketch6.addConstraint(Sketcher.Constraint("Horizontal", 2))
sketch6.addConstraint(Sketcher.Constraint("Coincident", 3, 3, -1, 1))
sketch6.addConstraint(Sketcher.Constraint("Vertical", 2, 2, 3, 1))
sketch6.addConstraint(Sketcher.Constraint("Radius", 3, Q("0.51 in")))
sketch6.addConstraint(Sketcher.Constraint("DistanceY", 1, 1, 1, 2, Q("0.087 in")))
sketch6.addConstraint(Sketcher.Constraint("DistanceX", 0, 1, 0, 2, 1.238975))
sketch6.setExpression("Constraints[9]", "Params.sketch6_radius")
sketch6.setExpression("Constraints[10]", "Params.sketch6_height")
pocket3 = body.newObject("PartDesign::Pocket", "Pocket002")
pocket3.Profile = sketch6
pocket3.Type = "ThroughAll"
pocket3.Reversed = True
doc.recompute()

mirrored = body.newObject("PartDesign::Mirrored", "Mirrored")
mirrored.Originals = [pocket1, pad2, pocket2, pocket3]
mirrored.MirrorPlane = (doc.getObject("YZ_Plane"), [""])
body.Tip = mirrored
body2 = doc.addObject("PartDesign::Body", "Body001")

sketch7 = body2.newObject("Sketcher::SketchObject", "Sketch006")
sketch7.AttachmentSupport = (doc.getObject("XY_Plane001"), [""])
sketch7.MapMode = "FlatFace"
sketch7.AttachmentOffset = App.Placement(Vector(0, 0, -2.8925 * 25.4), App.Rotation())
sketch7.addGeometry(Part.Circle(Vector(0, 0, 0), Vector(0, 0, 1), 12.954), False)
sketch7.addConstraint(Sketcher.Constraint("Coincident", 0, 3, -1, 1))
sketch7.addConstraint(Sketcher.Constraint("Diameter", 0, Q("1.02 in")))
sketch7.setExpression("Constraints[1]", "Params.sketch7_diameter")
pad3 = body2.newObject("PartDesign::Pad", "Pad002")
pad3.Profile = sketch7
pad3.setExpression("Length", "Params.pad3_length")

sketch8 = body2.newObject("Sketcher::SketchObject", "Sketch007")
sketch8.AttachmentSupport = (doc.getObject("XY_Plane001"), [""])
sketch8.MapMode = "FlatFace"
sketch8.AttachmentOffset = App.Placement(Vector(0, 0, -2.8075 * 25.4), App.Rotation())
sketch8.addGeometry(Part.LineSegment(Vector(0.508, 9.7155, 0), Vector(-0.508, 9.7155, 0)), False)
sketch8.addGeometry(Part.LineSegment(Vector(-0.508, 9.7155, 0), Vector(-0.508, 0.508, 0)), False)
sketch8.addGeometry(Part.LineSegment(Vector(-0.508, 0.508, 0), Vector(-9.7155, 0.508, 0)), False)
sketch8.addGeometry(Part.LineSegment(Vector(-9.7155, 0.508, 0), Vector(-9.7155, -0.508, 0)), False)
sketch8.addGeometry(Part.LineSegment(Vector(-9.7155, -0.508, 0), Vector(-0.508, -0.508, 0)), False)
sketch8.addGeometry(Part.LineSegment(Vector(-0.508, -0.508, 0), Vector(-0.508, -9.7155, 0)), False)
sketch8.addGeometry(Part.LineSegment(Vector(-0.508, -9.7155, 0), Vector(0.508, -9.7155, 0)), False)
sketch8.addGeometry(Part.LineSegment(Vector(0.508, -9.7155, 0), Vector(0.508, -0.508, 0)), False)
sketch8.addGeometry(Part.LineSegment(Vector(0.508, -0.508, 0), Vector(9.7155, -0.508, 0)), False)
sketch8.addGeometry(Part.LineSegment(Vector(9.7155, -0.508, 0), Vector(9.7155, 0.508, 0)), False)
sketch8.addGeometry(Part.LineSegment(Vector(9.7155, 0.508, 0), Vector(0.508, 0.508, 0)), False)
sketch8.addGeometry(Part.LineSegment(Vector(0.508, 0.508, 0), Vector(0.508, 9.7155, 0)), False)
sketch8.addConstraint(Sketcher.Constraint("Coincident", 0, 2, 1, 1))
sketch8.addConstraint(Sketcher.Constraint("Coincident", 1, 2, 2, 1))
sketch8.addConstraint(Sketcher.Constraint("Coincident", 2, 2, 3, 1))
sketch8.addConstraint(Sketcher.Constraint("Coincident", 3, 2, 4, 1))
sketch8.addConstraint(Sketcher.Constraint("Coincident", 4, 2, 5, 1))
sketch8.addConstraint(Sketcher.Constraint("Coincident", 5, 2, 6, 1))
sketch8.addConstraint(Sketcher.Constraint("Coincident", 6, 2, 7, 1))
sketch8.addConstraint(Sketcher.Constraint("Coincident", 7, 2, 8, 1))
sketch8.addConstraint(Sketcher.Constraint("Coincident", 8, 2, 9, 1))
sketch8.addConstraint(Sketcher.Constraint("Coincident", 9, 2, 10, 1))
sketch8.addConstraint(Sketcher.Constraint("Coincident", 10, 2, 11, 1))
sketch8.addConstraint(Sketcher.Constraint("Coincident", 11, 2, 0, 1))
sketch8.addConstraint(Sketcher.Constraint("Horizontal", 0))
sketch8.addConstraint(Sketcher.Constraint("Vertical", 1))
sketch8.addConstraint(Sketcher.Constraint("Horizontal", 2))
sketch8.addConstraint(Sketcher.Constraint("Vertical", 3))
sketch8.addConstraint(Sketcher.Constraint("Horizontal", 4))
sketch8.addConstraint(Sketcher.Constraint("Vertical", 5))
sketch8.addConstraint(Sketcher.Constraint("Horizontal", 6))
sketch8.addConstraint(Sketcher.Constraint("Vertical", 7))
sketch8.addConstraint(Sketcher.Constraint("Horizontal", 8))
sketch8.addConstraint(Sketcher.Constraint("Vertical", 9))
sketch8.addConstraint(Sketcher.Constraint("Horizontal", 10))
sketch8.addConstraint(Sketcher.Constraint("Vertical", 11))
sketch8.addConstraint(Sketcher.Constraint("Symmetric", 0, 2, 6, 2, -1, 1))
sketch8.addConstraint(Sketcher.Constraint("Symmetric", 2, 2, 8, 2, -1, 1))
sketch8.addConstraint(Sketcher.Constraint("Symmetric", 4, 2, 10, 2, -1, 1))
sketch8.addConstraint(Sketcher.Constraint("Symmetric", 4, 2, 7, 2, -2))
sketch8.addConstraint(Sketcher.Constraint("Equal", 10, 1))
sketch8.addConstraint(Sketcher.Constraint("Equal", 6, 3))
sketch8.addConstraint(Sketcher.Constraint("DistanceX", 0, 2, 0, 1, Q("0.04 in")))
sketch8.addConstraint(Sketcher.Constraint("DistanceX", 2, 2, 2, 1, Q("0.3625 in")))
sketch8.setExpression("Constraints[30]", "Params.sketch8_width")
pad4 = body2.newObject("PartDesign::Pad", "Pad003")
pad4.Profile = sketch8
pad4.setExpression("Length", "Params.pad4_length")

sketch9 = body2.newObject("Sketcher::SketchObject", "Sketch008")
sketch9.AttachmentSupport = (doc.getObject("XY_Plane001"), [""])
sketch9.MapMode = "FlatFace"
sketch9.AttachmentOffset = App.Placement(Vector(0, 0, 1.005 * 25.4), App.Rotation())
sketch9.addGeometry(Part.Circle(Vector(0, 0, 0), Vector(0, 0, 1), 10.287), False)
sketch9.addConstraint(Sketcher.Constraint("Coincident", 0, 3, -1, 1))
sketch9.addConstraint(Sketcher.Constraint("Diameter", 0, Q("0.81 in")))
sketch9.setExpression("Constraints[1]", "Params.sketch9_diameter")
pad5 = body2.newObject("PartDesign::Pad", "Pad004")
pad5.Profile = sketch9
pad5.setExpression("Length", "Params.pad5_length")
body3 = doc.addObject("PartDesign::Body", "Body002")

sketch10 = body3.newObject("Sketcher::SketchObject", "Sketch009")
sketch10.AttachmentSupport = (doc.getObject("YZ_Plane002"), [""])
sketch10.MapMode = "FlatFace"
sketch10.addGeometry(Part.LineSegment(Vector(0, 36.6395, 0), Vector(0, 26.797, 0)), False)
sketch10.addGeometry(Part.LineSegment(Vector(0, 26.797, 0), Vector(10.287, 26.797, 0)), False)
sketch10.addGeometry(Part.LineSegment(Vector(10.287, 26.797, 0), Vector(10.287, 28.273375, 0)), False)
sketch10.addGeometry(Part.LineSegment(Vector(10.287, 28.273375, 0), Vector(11.43, 29.74975, 0)), False)
sketch10.addGeometry(Part.LineSegment(Vector(11.43, 29.74975, 0), Vector(10.287, 31.226125, 0)), False)
sketch10.addGeometry(Part.LineSegment(Vector(10.287, 31.226125, 0), Vector(10.287, 32.7025, 0)), False)
sketch10.addGeometry(Part.LineSegment(Vector(10.287, 32.7025, 0), Vector(11.43, 34.178875, 0)), False)
sketch10.addGeometry(Part.LineSegment(Vector(11.43, 34.178875, 0), Vector(0, 36.6395, 0)), False)
sketch10.addConstraint(Sketcher.Constraint("Coincident", 0, 2, 1, 1))
sketch10.addConstraint(Sketcher.Constraint("Coincident", 1, 2, 2, 1))
sketch10.addConstraint(Sketcher.Constraint("Coincident", 2, 2, 3, 1))
sketch10.addConstraint(Sketcher.Constraint("Coincident", 3, 2, 4, 1))
sketch10.addConstraint(Sketcher.Constraint("Coincident", 4, 2, 5, 1))
sketch10.addConstraint(Sketcher.Constraint("Coincident", 5, 2, 6, 1))
sketch10.addConstraint(Sketcher.Constraint("Coincident", 6, 2, 7, 1))
sketch10.addConstraint(Sketcher.Constraint("Coincident", 7, 2, 0, 1))
sketch10.addConstraint(Sketcher.Constraint("Vertical", 0))
sketch10.addConstraint(Sketcher.Constraint("Horizontal", 1))
sketch10.addConstraint(Sketcher.Constraint("Vertical", 2))
sketch10.addConstraint(Sketcher.Constraint("Vertical", 5))
sketch10.addConstraint(Sketcher.Constraint("PointOnObject", 0, 2, -2))
sketch10.addConstraint(Sketcher.Constraint("Parallel", 3, 6))
sketch10.addConstraint(Sketcher.Constraint("Vertical", 2, 2, 4, 2))
sketch10.addConstraint(Sketcher.Constraint("Vertical", 3, 2, 6, 2))
sketch10.addConstraint(Sketcher.Constraint("Equal", 2, 5))
sketch10.addConstraint(Sketcher.Constraint("Equal", 3, 4))
sketch10.addConstraint(Sketcher.Constraint("DistanceX", 1, 1, 1, 2, Q("0.405 in")))
sketch10.addConstraint(Sketcher.Constraint("DistanceX", -1, 1, 3, 2, Q("0.45 in")))
sketch10.addConstraint(Sketcher.Constraint("DistanceY", 0, 2, 0, 1, Q("0.3875 in")))
sketch10.addConstraint(Sketcher.Constraint("DistanceY", -1, 1, 0, 2, Q("1.055 in")))
sketch10.addConstraint(Sketcher.Constraint("DistanceY", 5, 2, 7, 2, Q("0.155 in")))
sketch10.addConstraint(Sketcher.Constraint("DistanceY", 2, 2, 6, 2, Q("0.2325 in")))
sketch10.setExpression("Constraints[18]", "Params.sketch10_width")
revolution2 = body3.newObject("PartDesign::Revolution", "Revolution001")
revolution2.Profile = sketch10
revolution2.ReferenceAxis = (sketch10, ["V_Axis"])
revolution2.setExpression("Angle", "Params.revolution2_angle")

doc.recompute()
